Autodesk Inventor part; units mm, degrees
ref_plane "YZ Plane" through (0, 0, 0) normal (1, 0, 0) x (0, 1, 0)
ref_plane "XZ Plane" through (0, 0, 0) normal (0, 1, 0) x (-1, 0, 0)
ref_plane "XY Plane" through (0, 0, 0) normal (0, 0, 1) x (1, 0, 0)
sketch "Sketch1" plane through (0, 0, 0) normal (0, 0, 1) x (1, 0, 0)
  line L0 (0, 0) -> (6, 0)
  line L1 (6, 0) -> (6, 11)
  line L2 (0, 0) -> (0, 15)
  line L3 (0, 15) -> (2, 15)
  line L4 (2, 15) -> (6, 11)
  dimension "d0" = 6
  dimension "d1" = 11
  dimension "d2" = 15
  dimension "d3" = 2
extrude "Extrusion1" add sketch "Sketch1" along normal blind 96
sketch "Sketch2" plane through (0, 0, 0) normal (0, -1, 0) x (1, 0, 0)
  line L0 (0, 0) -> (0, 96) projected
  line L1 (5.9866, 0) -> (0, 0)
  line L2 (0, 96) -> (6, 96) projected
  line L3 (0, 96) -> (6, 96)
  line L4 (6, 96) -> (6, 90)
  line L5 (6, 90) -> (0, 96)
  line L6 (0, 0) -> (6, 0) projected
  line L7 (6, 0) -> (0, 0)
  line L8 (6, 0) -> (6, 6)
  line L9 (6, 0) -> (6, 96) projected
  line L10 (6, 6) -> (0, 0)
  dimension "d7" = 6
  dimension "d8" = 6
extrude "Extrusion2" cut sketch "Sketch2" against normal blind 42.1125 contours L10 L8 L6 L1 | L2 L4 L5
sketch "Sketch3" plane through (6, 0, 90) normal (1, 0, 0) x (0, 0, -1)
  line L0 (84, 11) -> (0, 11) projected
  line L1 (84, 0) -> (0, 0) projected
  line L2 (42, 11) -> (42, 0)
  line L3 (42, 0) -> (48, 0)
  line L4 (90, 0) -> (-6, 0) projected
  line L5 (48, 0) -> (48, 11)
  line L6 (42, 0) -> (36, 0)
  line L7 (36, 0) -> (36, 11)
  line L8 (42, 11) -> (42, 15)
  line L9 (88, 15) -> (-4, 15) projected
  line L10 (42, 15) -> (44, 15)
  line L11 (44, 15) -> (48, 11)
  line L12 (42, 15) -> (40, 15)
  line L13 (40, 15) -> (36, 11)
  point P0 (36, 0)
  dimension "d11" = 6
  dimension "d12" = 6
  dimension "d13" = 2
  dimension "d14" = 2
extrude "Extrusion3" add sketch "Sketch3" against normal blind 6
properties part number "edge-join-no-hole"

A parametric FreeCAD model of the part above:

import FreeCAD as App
import Part
import Sketcher
Q = App.Units.Quantity


def add_polygon(sketch, points):
    """Adds a closed chain of lines whose ends are joined by coincident constraints."""
    first, n = sketch.GeometryCount, len(points)
    for a, b in zip(points, points[1:] + points[:1]):
        sketch.addGeometry(Part.LineSegment(App.Vector(*a, 0), App.Vector(*b, 0)), False)
    for i in range(n):
        sketch.addConstraint(Sketcher.Constraint("Coincident", first + i, 2, first + (i + 1) % n, 1))

doc = App.newDocument("Part")
body = doc.addObject("PartDesign::Body", "Body")

sketch1 = doc.addObject("Sketcher::SketchObject", "Sketch")
body.addObject(sketch1)
sketch1.AttachmentSupport = (doc.XY_Plane, [""])
sketch1.MapMode = "FlatFace"
add_polygon(sketch1, [(0, 15), (0, 0), (6, 0), (6, 11), (2, 15)])
sketch1.addConstraint(Sketcher.Constraint("Vertical", 0))
sketch1.addConstraint(Sketcher.Constraint("Horizontal", 1))
sketch1.addConstraint(Sketcher.Constraint("Vertical", 2))
sketch1.addConstraint(Sketcher.Constraint("Horizontal", 4))
sketch1.addConstraint(Sketcher.Constraint("Coincident", 0, 2, -1, 1))
sketch1.addConstraint(Sketcher.Constraint("DistanceX", 1, 1, 1, 2, Q("6 mm")))
sketch1.addConstraint(Sketcher.Constraint("DistanceX", 4, 2, 4, 1, Q("2 mm")))
sketch1.addConstraint(Sketcher.Constraint("DistanceY", 0, 2, 0, 1, Q("15 mm")))
sketch1.addConstraint(Sketcher.Constraint("DistanceY", 2, 1, 2, 2, Q("11 mm")))
pad1 = doc.addObject("PartDesign::Pad", "Pad")
body.addObject(pad1)
pad1.Profile = sketch1
pad1.Length = 96

sketch2 = doc.addObject("Sketcher::SketchObject", "Sketch001")
body.addObject(sketch2)
sketch2.AttachmentSupport = (doc.XZ_Plane, [""])
sketch2.MapMode = "FlatFace"
add_polygon(sketch2, [(6, 6), (0, 0), (6, 0)])
add_polygon(sketch2, [(6, 96), (0, 96), (6, 90)])
sketch2.addConstraint(Sketcher.Constraint("Horizontal", 1))
sketch2.addConstraint(Sketcher.Constraint("Vertical", 2))
sketch2.addConstraint(Sketcher.Constraint("Horizontal", 3))
sketch2.addConstraint(Sketcher.Constraint("Vertical", 5))
sketch2.addConstraint(Sketcher.Constraint("Coincident", 0, 2, -1, 1))
sketch2.addConstraint(Sketcher.Constraint("PointOnObject", 3, 2, -2))
sketch2.addConstraint(Sketcher.Constraint("Perpendicular", 0, 4))
sketch2.addConstraint(Sketcher.Constraint("Vertical", 2, 2, 4, 2))
sketch2.addConstraint(Sketcher.Constraint("Equal", 3, 2))
sketch2.addConstraint(Sketcher.Constraint("DistanceX", 1, 1, 1, 2, Q("6 mm")))
sketch2.addConstraint(Sketcher.Constraint("DistanceY", -1, 1, 3, 2, Q("96 mm")))
pocket1 = doc.addObject("PartDesign::Pocket", "Pocket")
body.addObject(pocket1)
pocket1.Profile = sketch2
pocket1.Length = 42.1125

sketch3 = doc.addObject("Sketcher::SketchObject", "Sketch002")
body.addObject(sketch3)
sketch3.AttachmentSupport = (doc.YZ_Plane, [""])
sketch3.MapMode = "FlatFace"
sketch3.AttachmentOffset = App.Placement(App.Vector(0, 0, 6), App.Rotation())
add_polygon(sketch3, [(0, 42), (11, 42), (15, 46), (15, 50), (11, 54), (0, 54)])
sketch3.addConstraint(Sketcher.Constraint("Horizontal", 0))
sketch3.addConstraint(Sketcher.Constraint("Vertical", 2))
sketch3.addConstraint(Sketcher.Constraint("Horizontal", 4))
sketch3.addConstraint(Sketcher.Constraint("Vertical", 5))
sketch3.addConstraint(Sketcher.Constraint("PointOnObject", 4, 2, -2))
sketch3.addConstraint(Sketcher.Constraint("Perpendicular", 1, 3))
sketch3.addConstraint(Sketcher.Constraint("Vertical", 0, 2, 3, 2))
sketch3.addConstraint(Sketcher.Constraint("Equal", 1, 3))
sketch3.addConstraint(Sketcher.Constraint("DistanceX", 0, 1, 0, 2, Q("11 mm")))
sketch3.addConstraint(Sketcher.Constraint("DistanceY", 2, 1, 2, 2, Q("4 mm")))
sketch3.addConstraint(Sketcher.Constraint("DistanceY", 5, 2, 5, 1, Q("12 mm")))
sketch3.addConstraint(Sketcher.Constraint("DistanceY", -1, 1, 0, 2, Q("42 mm")))
pad2 = doc.addObject("PartDesign::Pad", "Pad001")
body.addObject(pad2)
pad2.Profile = sketch3
pad2.Length = 6
pad2.Reversed = True

doc.recompute()
